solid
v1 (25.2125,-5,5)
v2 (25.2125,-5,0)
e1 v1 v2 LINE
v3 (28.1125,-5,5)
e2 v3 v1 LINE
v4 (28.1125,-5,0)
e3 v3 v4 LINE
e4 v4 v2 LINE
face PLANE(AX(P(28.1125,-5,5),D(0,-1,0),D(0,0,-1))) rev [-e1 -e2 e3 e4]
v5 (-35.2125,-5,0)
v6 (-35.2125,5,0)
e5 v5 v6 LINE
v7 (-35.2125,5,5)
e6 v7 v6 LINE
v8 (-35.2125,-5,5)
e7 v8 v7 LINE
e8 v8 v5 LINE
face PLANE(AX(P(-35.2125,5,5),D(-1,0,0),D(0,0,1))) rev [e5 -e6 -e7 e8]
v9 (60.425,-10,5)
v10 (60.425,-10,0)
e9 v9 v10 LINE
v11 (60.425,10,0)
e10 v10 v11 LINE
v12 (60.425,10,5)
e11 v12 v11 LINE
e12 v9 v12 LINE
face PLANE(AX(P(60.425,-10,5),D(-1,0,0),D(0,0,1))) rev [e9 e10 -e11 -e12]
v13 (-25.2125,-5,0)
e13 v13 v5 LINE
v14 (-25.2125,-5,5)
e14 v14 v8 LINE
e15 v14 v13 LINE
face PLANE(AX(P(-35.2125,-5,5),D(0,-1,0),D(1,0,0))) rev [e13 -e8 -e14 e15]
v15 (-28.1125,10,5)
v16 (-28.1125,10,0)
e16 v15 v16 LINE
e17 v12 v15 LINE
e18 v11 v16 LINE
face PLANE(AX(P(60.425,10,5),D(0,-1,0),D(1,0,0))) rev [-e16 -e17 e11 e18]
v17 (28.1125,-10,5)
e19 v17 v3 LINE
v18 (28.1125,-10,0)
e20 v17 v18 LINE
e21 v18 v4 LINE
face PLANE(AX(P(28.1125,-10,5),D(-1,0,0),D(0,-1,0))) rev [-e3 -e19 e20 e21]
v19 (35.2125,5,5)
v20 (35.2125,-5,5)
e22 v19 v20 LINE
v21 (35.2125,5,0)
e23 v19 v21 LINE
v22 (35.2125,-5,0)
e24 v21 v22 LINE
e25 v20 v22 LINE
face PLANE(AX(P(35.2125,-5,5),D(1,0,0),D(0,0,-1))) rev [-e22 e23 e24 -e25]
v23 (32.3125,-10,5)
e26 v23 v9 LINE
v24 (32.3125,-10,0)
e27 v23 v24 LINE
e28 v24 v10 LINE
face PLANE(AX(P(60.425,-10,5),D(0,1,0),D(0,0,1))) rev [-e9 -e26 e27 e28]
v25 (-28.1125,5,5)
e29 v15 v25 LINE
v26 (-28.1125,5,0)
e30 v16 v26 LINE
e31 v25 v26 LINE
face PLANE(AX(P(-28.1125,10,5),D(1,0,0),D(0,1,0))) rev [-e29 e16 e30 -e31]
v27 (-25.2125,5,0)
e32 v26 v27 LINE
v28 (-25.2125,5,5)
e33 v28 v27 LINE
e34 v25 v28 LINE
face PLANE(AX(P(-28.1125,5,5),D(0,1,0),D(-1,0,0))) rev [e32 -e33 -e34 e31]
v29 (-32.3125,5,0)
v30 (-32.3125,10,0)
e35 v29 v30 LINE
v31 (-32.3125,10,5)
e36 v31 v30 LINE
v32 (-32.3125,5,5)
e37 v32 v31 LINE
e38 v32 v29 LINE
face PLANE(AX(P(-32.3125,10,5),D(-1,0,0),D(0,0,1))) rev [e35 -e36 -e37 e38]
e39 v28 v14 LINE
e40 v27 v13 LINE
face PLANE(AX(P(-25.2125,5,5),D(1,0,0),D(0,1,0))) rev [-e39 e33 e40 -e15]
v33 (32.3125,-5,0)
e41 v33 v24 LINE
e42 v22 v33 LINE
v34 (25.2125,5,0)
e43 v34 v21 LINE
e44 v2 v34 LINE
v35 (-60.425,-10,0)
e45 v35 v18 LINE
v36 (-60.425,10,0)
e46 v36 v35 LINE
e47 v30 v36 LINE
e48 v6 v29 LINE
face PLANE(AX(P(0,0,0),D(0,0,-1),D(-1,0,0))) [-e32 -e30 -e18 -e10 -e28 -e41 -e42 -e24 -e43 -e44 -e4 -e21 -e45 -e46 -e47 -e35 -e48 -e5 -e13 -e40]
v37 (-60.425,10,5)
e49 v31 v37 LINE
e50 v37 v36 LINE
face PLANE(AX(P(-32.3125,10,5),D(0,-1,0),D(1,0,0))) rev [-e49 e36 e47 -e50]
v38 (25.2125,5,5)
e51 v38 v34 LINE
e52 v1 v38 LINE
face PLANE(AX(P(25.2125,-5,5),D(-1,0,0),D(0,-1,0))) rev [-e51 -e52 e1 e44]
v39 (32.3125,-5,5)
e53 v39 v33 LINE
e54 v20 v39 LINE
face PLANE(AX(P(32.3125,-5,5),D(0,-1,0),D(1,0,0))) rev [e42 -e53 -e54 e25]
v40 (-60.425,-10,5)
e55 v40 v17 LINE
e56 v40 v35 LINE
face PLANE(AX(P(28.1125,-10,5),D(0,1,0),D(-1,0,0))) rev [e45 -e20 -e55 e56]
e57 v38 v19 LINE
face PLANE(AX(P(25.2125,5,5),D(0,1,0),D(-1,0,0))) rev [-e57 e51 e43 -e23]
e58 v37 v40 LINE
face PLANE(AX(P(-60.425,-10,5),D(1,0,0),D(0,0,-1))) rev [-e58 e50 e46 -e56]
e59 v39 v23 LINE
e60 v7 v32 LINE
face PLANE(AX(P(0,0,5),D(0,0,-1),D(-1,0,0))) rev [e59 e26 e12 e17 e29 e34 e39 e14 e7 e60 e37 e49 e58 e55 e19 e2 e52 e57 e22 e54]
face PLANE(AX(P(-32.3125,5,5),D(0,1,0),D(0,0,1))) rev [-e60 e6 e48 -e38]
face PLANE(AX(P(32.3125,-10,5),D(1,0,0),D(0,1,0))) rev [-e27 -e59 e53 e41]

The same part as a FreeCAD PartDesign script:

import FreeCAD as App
import Part
import Sketcher

V = App.Vector
Q = App.Units.Quantity

doc = App.newDocument("Part")
body = doc.addObject("PartDesign::Body", "Body")

# Sketch on XY plane
sketch1 = body.newObject("Sketcher::SketchObject", "Sketch")
sketch1.AttachmentSupport = (doc.getObject("XY_Plane"), [""])
sketch1.MapMode = "FlatFace"
sketch1.addGeometry([
    Part.LineSegment(V(32.3125, -10, 0), V(60.425, -10, 0)),  # 0
    Part.LineSegment(V(60.425, -10, 0), V(60.425, 10, 0)),  # 1
    Part.LineSegment(V(60.425, 10, 0), V(-28.1125, 10, 0)),  # 2
    Part.LineSegment(V(-28.1125, 10, 0), V(-28.1125, 5, 0)),  # 3
    Part.LineSegment(V(-28.1125, 5, 0), V(-25.2125, 5, 0)),  # 4
    Part.LineSegment(V(-25.2125, 5, 0), V(-25.2125, -5, 0)),  # 5
    Part.LineSegment(V(-25.2125, -5, 0), V(-35.2125, -5, 0)),  # 6
    Part.LineSegment(V(-35.2125, -5, 0), V(-35.2125, 5, 0)),  # 7
    Part.LineSegment(V(-35.2125, 5, 0), V(-32.3125, 5, 0)),  # 8
    Part.LineSegment(V(-32.3125, 5, 0), V(-32.3125, 10, 0)),  # 9
    Part.LineSegment(V(-32.3125, 10, 0), V(-60.425, 10, 0)),  # 10
    Part.LineSegment(V(-60.425, 10, 0), V(-60.425, -10, 0)),  # 11
    Part.LineSegment(V(-60.425, -10, 0), V(28.1125, -10, 0)),  # 12
    Part.LineSegment(V(28.1125, -10, 0), V(28.1125, -5, 0)),  # 13
    Part.LineSegment(V(28.1125, -5, 0), V(25.2125, -5, 0)),  # 14
    Part.LineSegment(V(25.2125, -5, 0), V(25.2125, 5, 0)),  # 15
    Part.LineSegment(V(25.2125, 5, 0), V(35.2125, 5, 0)),  # 16
    Part.LineSegment(V(35.2125, 5, 0), V(35.2125, -5, 0)),  # 17
    Part.LineSegment(V(35.2125, -5, 0), V(32.3125, -5, 0)),  # 18
    Part.LineSegment(V(32.3125, -5, 0), V(32.3125, -10, 0)),  # 19
], False)
sketch1.addConstraint([
    Sketcher.Constraint("Coincident", 0, 2, 1, 1),
    Sketcher.Constraint("Coincident", 1, 2, 2, 1),
    Sketcher.Constraint("Coincident", 2, 2, 3, 1),
    Sketcher.Constraint("Coincident", 3, 2, 4, 1),
    Sketcher.Constraint("Coincident", 4, 2, 5, 1),
    Sketcher.Constraint("Coincident", 5, 2, 6, 1),
    Sketcher.Constraint("Coincident", 6, 2, 7, 1),
    Sketcher.Constraint("Coincident", 7, 2, 8, 1),
    Sketcher.Constraint("Coincident", 8, 2, 9, 1),
    Sketcher.Constraint("Coincident", 9, 2, 10, 1),
    Sketcher.Constraint("Coincident", 10, 2, 11, 1),
    Sketcher.Constraint("Coincident", 11, 2, 12, 1),
    Sketcher.Constraint("Coincident", 12, 2, 13, 1),
    Sketcher.Constraint("Coincident", 13, 2, 14, 1),
    Sketcher.Constraint("Coincident", 14, 2, 15, 1),
    Sketcher.Constraint("Coincident", 15, 2, 16, 1),
    Sketcher.Constraint("Coincident", 16, 2, 17, 1),
    Sketcher.Constraint("Coincident", 17, 2, 18, 1),
    Sketcher.Constraint("Coincident", 18, 2, 19, 1),
    Sketcher.Constraint("Coincident", 19, 2, 0, 1),
    Sketcher.Constraint("Horizontal", 0),
    Sketcher.Constraint("Vertical", 1),
    Sketcher.Constraint("Horizontal", 2),
    Sketcher.Constraint("Vertical", 3),
    Sketcher.Constraint("Horizontal", 4),
    Sketcher.Constraint("Vertical", 5),
    Sketcher.Constraint("Horizontal", 6),
    Sketcher.Constraint("Vertical", 7),
    Sketcher.Constraint("Horizontal", 8),
    Sketcher.Constraint("Vertical", 9),
    Sketcher.Constraint("Horizontal", 10),
    Sketcher.Constraint("Vertical", 11),
    Sketcher.Constraint("Horizontal", 12),
    Sketcher.Constraint("Vertical", 13),
    Sketcher.Constraint("Horizontal", 14),
    Sketcher.Constraint("Vertical", 15),
    Sketcher.Constraint("Horizontal", 16),
    Sketcher.Constraint("Vertical", 17),
    Sketcher.Constraint("Horizontal", 18),
    Sketcher.Constraint("Vertical", 19),
    Sketcher.Constraint("Symmetric", 0, 2, 10, 2, -1, 1),
    Sketcher.Constraint("Symmetric", 2, 2, 12, 2, -1, 1),
    Sketcher.Constraint("Symmetric", 4, 2, 14, 2, -1, 1),
    Sketcher.Constraint("Symmetric", 6, 2, 16, 2, -1, 1),
    Sketcher.Constraint("Symmetric", 8, 2, 18, 2, -1, 1),
    Sketcher.Constraint("Horizontal", 4, 2, 7, 2),
    Sketcher.Constraint("Horizontal", 2, 2, 9, 2),
    Sketcher.Constraint("Horizontal", 6, 2, 13, 2),
    Sketcher.Constraint("Equal", 4, 8),
    Sketcher.Constraint("Equal", 16, 5),
    Sketcher.Constraint("DistanceX", 6, 2, 6, 1, Q("10 mm")),
    Sketcher.Constraint("DistanceY", 1, 1, 1, 2, Q("20 mm")),
    Sketcher.Constraint("DistanceX", 4, 1, 4, 2, Q("2.9 mm")),
    Sketcher.Constraint("DistanceX", 0, 1, 0, 2, Q("28.1125 mm")),
    Sketcher.Constraint("DistanceX", 2, 2, 2, 1, Q("88.5375 mm")),
])
pad1 = body.newObject("PartDesign::Pad", "Pad")
pad1.Profile = sketch1
pad1.Length = 5

doc.recompute()
